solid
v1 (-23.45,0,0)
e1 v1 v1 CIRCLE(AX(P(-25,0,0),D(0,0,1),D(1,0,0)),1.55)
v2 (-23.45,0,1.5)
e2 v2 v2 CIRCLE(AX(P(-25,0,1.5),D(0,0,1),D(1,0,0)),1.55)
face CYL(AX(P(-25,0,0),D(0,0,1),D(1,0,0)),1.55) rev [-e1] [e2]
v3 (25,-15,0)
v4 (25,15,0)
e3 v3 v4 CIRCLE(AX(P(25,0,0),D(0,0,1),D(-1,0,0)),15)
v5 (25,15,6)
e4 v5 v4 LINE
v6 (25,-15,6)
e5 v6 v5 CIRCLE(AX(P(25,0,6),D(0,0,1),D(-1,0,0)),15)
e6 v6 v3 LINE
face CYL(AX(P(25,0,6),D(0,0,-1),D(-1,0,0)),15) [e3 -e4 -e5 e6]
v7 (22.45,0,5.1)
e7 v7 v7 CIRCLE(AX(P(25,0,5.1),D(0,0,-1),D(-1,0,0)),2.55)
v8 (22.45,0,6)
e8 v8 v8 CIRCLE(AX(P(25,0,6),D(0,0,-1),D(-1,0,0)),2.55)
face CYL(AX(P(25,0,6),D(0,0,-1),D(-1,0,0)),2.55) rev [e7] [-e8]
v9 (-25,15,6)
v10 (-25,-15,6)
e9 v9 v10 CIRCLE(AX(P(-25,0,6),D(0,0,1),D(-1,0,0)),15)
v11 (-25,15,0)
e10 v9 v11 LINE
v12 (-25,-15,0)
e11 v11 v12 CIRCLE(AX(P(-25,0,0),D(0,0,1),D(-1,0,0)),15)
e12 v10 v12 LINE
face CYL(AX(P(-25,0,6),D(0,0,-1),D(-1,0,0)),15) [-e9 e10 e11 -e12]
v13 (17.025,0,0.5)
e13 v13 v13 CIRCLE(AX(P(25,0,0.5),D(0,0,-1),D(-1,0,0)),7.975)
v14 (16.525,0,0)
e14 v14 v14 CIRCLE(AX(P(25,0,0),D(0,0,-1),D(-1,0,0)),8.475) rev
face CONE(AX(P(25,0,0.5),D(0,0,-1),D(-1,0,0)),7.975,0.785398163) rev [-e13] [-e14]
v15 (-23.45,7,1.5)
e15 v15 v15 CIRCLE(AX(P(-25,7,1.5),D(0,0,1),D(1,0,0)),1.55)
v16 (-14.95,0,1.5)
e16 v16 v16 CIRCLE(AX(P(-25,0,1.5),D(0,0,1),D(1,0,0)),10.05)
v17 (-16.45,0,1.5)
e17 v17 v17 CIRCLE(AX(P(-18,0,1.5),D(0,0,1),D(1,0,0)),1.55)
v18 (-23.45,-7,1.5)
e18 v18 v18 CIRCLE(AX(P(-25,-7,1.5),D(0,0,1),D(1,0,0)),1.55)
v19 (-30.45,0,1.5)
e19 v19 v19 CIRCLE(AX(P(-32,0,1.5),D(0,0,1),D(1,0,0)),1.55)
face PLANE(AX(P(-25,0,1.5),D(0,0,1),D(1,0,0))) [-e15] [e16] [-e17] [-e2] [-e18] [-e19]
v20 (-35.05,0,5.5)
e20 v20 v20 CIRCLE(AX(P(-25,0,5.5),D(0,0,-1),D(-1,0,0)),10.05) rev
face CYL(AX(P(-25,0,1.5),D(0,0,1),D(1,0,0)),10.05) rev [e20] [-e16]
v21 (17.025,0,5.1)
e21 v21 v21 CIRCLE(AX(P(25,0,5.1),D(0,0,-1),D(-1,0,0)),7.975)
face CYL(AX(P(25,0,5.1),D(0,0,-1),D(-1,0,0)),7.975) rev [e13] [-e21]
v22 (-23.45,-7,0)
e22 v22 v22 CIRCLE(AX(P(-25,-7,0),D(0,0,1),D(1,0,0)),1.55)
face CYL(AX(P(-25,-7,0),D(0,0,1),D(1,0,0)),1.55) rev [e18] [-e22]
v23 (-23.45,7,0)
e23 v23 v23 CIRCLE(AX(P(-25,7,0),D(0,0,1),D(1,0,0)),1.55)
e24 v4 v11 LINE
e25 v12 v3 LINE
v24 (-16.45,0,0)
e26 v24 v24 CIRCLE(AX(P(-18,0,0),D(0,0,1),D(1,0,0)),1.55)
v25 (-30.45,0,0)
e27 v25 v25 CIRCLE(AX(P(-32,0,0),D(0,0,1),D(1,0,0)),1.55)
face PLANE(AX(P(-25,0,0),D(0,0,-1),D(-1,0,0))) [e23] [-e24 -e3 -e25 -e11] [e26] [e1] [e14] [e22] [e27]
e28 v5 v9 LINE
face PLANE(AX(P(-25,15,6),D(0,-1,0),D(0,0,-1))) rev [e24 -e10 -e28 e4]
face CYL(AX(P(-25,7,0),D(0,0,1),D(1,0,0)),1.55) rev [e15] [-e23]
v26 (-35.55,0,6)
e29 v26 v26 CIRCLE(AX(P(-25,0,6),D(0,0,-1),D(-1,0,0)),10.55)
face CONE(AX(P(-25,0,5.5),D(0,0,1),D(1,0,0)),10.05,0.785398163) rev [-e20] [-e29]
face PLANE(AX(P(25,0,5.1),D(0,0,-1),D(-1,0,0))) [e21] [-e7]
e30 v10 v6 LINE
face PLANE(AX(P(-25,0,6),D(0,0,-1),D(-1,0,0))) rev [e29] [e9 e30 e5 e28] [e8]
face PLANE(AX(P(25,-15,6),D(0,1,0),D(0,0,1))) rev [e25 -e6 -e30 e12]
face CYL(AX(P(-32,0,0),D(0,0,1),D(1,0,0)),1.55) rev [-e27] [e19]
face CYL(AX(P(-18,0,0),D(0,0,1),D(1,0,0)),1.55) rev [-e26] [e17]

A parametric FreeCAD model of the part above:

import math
import FreeCAD as App
import Part
import Sketcher
Q = App.Units.Quantity


def edges_at(feature, points):
    """Names of the edges that pass closest to the given points."""
    edges = feature.Shape.Edges
    near = lambda p: min(range(len(edges)), key=lambda i: edges[i].distToShape(Part.Vertex(*p))[0])
    return sorted({f"Edge{near(p) + 1}" for p in points})

doc = App.newDocument("Part")
body = doc.addObject("PartDesign::Body", "Body")

sketch1 = doc.addObject("Sketcher::SketchObject", "Sketch")
body.addObject(sketch1)
sketch1.AttachmentSupport = (doc.XY_Plane, [""])
sketch1.MapMode = "FlatFace"
sketch1.addGeometry(Part.LineSegment(App.Vector(25, 15, 0), App.Vector(-25, 15, 0)), False)
sketch1.addGeometry(Part.ArcOfCircle(Part.Circle(App.Vector(-25, 0, 0), App.Vector(0, 0, 1), 15), math.radians(90), math.radians(270)), False)
sketch1.addGeometry(Part.LineSegment(App.Vector(-25, -15, 0), App.Vector(25, -15, 0)), False)
sketch1.addGeometry(Part.ArcOfCircle(Part.Circle(App.Vector(25, 0, 0), App.Vector(0, 0, 1), 15), math.radians(-90), math.radians(90)), False)
sketch1.addConstraint(Sketcher.Constraint("Tangent", 0, 2, 1, 1))
sketch1.addConstraint(Sketcher.Constraint("Tangent", 1, 2, 2, 1))
sketch1.addConstraint(Sketcher.Constraint("Tangent", 2, 2, 3, 1))
sketch1.addConstraint(Sketcher.Constraint("Tangent", 3, 2, 0, 1))
sketch1.addConstraint(Sketcher.Constraint("Horizontal", 0))
sketch1.addConstraint(Sketcher.Constraint("Horizontal", 2))
sketch1.addConstraint(Sketcher.Constraint("Symmetric", 1, 3, 3, 3, -1, 1))
sketch1.addConstraint(Sketcher.Constraint("Radius", 1, Q("15 mm")))
sketch1.addConstraint(Sketcher.Constraint("DistanceX", 0, 2, 0, 1, Q("50 mm")))
pad1 = doc.addObject("PartDesign::Pad", "Pad")
body.addObject(pad1)
pad1.Profile = sketch1
pad1.Length = 6

sketch2 = doc.addObject("Sketcher::SketchObject", "Sketch001")
body.addObject(sketch2)
sketch2.AttachmentSupport = (doc.XY_Plane, [""])
sketch2.MapMode = "FlatFace"
sketch2.AttachmentOffset = App.Placement(App.Vector(0, 0, 6), App.Rotation())
sketch2.addGeometry(Part.Circle(App.Vector(-25, 0, 0), App.Vector(0, 0, 1), 10), False)
sketch2.addConstraint(Sketcher.Constraint("PointOnObject", 0, 3, -1))
sketch2.addConstraint(Sketcher.Constraint("Diameter", 0, Q("20.1 mm")))
sketch2.addConstraint(Sketcher.Constraint("DistanceX", 0, 3, -1, 1, Q("25 mm")))
pocket1 = doc.addObject("PartDesign::Pocket", "Pocket")
body.addObject(pocket1)
pocket1.Profile = sketch2
pocket1.Length = 4.5

sketch3 = doc.addObject("Sketcher::SketchObject", "Sketch002")
body.addObject(sketch3)
sketch3.AttachmentSupport = (doc.XY_Plane, [""])
sketch3.MapMode = "FlatFace"
sketch3.addGeometry(Part.Circle(App.Vector(25, 0, 0), App.Vector(0, 0, 1), 8), False)
sketch3.addConstraint(Sketcher.Constraint("PointOnObject", 0, 3, -1))
sketch3.addConstraint(Sketcher.Constraint("Diameter", 0, Q("15.95 mm")))
sketch3.addConstraint(Sketcher.Constraint("DistanceX", -1, 1, 0, 3, Q("25 mm")))
pocket2 = doc.addObject("PartDesign::Pocket", "Pocket001")
body.addObject(pocket2)
pocket2.Profile = sketch3
pocket2.Length = 5.1
pocket2.Reversed = True

sketch4 = doc.addObject("Sketcher::SketchObject", "Sketch003")
body.addObject(sketch4)
sketch4.AttachmentSupport = (doc.XY_Plane, [""])
sketch4.MapMode = "FlatFace"
sketch4.AttachmentOffset = App.Placement(App.Vector(0, 0, 5.1), App.Rotation())
sketch4.addGeometry(Part.Circle(App.Vector(25, 0, 0), App.Vector(0, 0, 1), 2.5), False)
sketch4.addConstraint(Sketcher.Constraint("PointOnObject", 0, 3, -1))
sketch4.addConstraint(Sketcher.Constraint("Diameter", 0, Q("5.1 mm")))
sketch4.addConstraint(Sketcher.Constraint("DistanceX", -1, 1, 0, 3, Q("25 mm")))
pocket3 = doc.addObject("PartDesign::Pocket", "Pocket002")
body.addObject(pocket3)
pocket3.Profile = sketch4
pocket3.Type = "ThroughAll"
pocket3.Reversed = True

sketch5 = doc.addObject("Sketcher::SketchObject", "Sketch004")
body.addObject(sketch5)
sketch5.AttachmentSupport = (doc.XY_Plane, [""])
sketch5.MapMode = "FlatFace"
sketch5.AttachmentOffset = App.Placement(App.Vector(0, 0, 1.5), App.Rotation())
sketch5.addGeometry(Part.Circle(App.Vector(-25, 0, 0), App.Vector(0, 0, 1), 1.6), False)
sketch5.addGeometry(Part.Circle(App.Vector(-18, 0, 0), App.Vector(0, 0, 1), 1.6), False)
sketch5.addGeometry(Part.Circle(App.Vector(-32, 0, 0), App.Vector(0, 0, 1), 1.6), False)
sketch5.addGeometry(Part.Circle(App.Vector(-25, 7, 0), App.Vector(0, 0, 1), 1.6), False)
sketch5.addGeometry(Part.Circle(App.Vector(-25, -7, 0), App.Vector(0, 0, 1), 1.6), False)
sketch5.addConstraint(Sketcher.Constraint("Equal", 0, 1))
sketch5.addConstraint(Sketcher.Constraint("Equal", 1, 2))
sketch5.addConstraint(Sketcher.Constraint("Equal", 2, 3))
sketch5.addConstraint(Sketcher.Constraint("Equal", 3, 4))
sketch5.addConstraint(Sketcher.Constraint("Symmetric", 3, 3, 4, 3, -1))
sketch5.addConstraint(Sketcher.Constraint("PointOnObject", 0, 3, -1))
sketch5.addConstraint(Sketcher.Constraint("PointOnObject", 1, 3, -1))
sketch5.addConstraint(Sketcher.Constraint("PointOnObject", 2, 3, -1))
sketch5.addConstraint(Sketcher.Constraint("Vertical", 0, 3, 3, 3))
sketch5.addConstraint(Sketcher.Constraint("Diameter", 0, Q("3.1 mm")))
sketch5.addConstraint(Sketcher.Constraint("DistanceX", 0, 3, -1, 1, Q("25 mm")))
sketch5.addConstraint(Sketcher.Constraint("DistanceX", 1, 3, -1, 1, Q("18 mm")))
sketch5.addConstraint(Sketcher.Constraint("DistanceX", 2, 3, -1, 1, Q("32 mm")))
sketch5.addConstraint(Sketcher.Constraint("DistanceY", -1, 1, 3, 3, Q("7 mm")))
pocket4 = doc.addObject("PartDesign::Pocket", "Pocket003")
body.addObject(pocket4)
pocket4.Profile = sketch5
pocket4.Type = "ThroughAll"
doc.recompute()

chamfer = doc.addObject("PartDesign::Chamfer", "Chamfer")
body.addObject(chamfer)
chamfer.Base = (pocket4, edges_at(pocket4, [(-35.05, 0, 6), (32.975, 0, 0)]))
chamfer.Size = 0.5

doc.recompute()
